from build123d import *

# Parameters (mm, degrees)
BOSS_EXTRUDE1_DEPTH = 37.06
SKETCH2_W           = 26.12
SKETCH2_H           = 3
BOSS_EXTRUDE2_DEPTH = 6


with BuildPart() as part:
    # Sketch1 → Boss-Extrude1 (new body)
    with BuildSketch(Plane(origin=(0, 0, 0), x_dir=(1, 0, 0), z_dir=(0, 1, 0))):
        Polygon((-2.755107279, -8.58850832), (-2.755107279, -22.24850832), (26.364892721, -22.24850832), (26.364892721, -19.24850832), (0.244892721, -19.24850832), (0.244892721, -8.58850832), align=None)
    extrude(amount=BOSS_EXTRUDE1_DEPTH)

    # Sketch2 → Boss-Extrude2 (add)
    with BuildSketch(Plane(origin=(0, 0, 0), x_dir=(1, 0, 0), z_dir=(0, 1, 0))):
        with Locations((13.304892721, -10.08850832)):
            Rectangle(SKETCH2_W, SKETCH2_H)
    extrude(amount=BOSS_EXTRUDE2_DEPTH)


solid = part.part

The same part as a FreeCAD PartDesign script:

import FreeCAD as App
import Part
import Sketcher
from FreeCAD import Vector

doc = App.newDocument("Part")
body = doc.addObject("PartDesign::Body", "Body")

sketch1 = body.newObject("Sketcher::SketchObject", "Sketch")
sketch1.AttachmentSupport = (doc.getObject("XZ_Plane"), [""])
sketch1.MapMode = "FlatFace"
sketch1.addGeometry(Part.LineSegment(Vector(-2.8, 8.6, 0), Vector(-2.8, 22.2, 0)), False)
sketch1.addGeometry(Part.LineSegment(Vector(-2.8, 22.2, 0), Vector(26.4, 22.2, 0)), False)
sketch1.addGeometry(Part.LineSegment(Vector(26.4, 22.2, 0), Vector(26.4, 19.2, 0)), False)
sketch1.addGeometry(Part.LineSegment(Vector(26.4, 19.2, 0), Vector(0.2, 19.2, 0)), False)
sketch1.addGeometry(Part.LineSegment(Vector(0.2, 19.2, 0), Vector(0.2, 8.6, 0)), False)
sketch1.addGeometry(Part.LineSegment(Vector(0.2, 8.6, 0), Vector(-2.8, 8.6, 0)), False)
sketch1.addConstraint(Sketcher.Constraint("Coincident", 0, 2, 1, 1))
sketch1.addConstraint(Sketcher.Constraint("Coincident", 1, 2, 2, 1))
sketch1.addConstraint(Sketcher.Constraint("Coincident", 2, 2, 3, 1))
sketch1.addConstraint(Sketcher.Constraint("Coincident", 3, 2, 4, 1))
sketch1.addConstraint(Sketcher.Constraint("Coincident", 4, 2, 5, 1))
sketch1.addConstraint(Sketcher.Constraint("Coincident", 5, 2, 0, 1))
sketch1.addConstraint(Sketcher.Constraint("Vertical", 0))
sketch1.addConstraint(Sketcher.Constraint("Horizontal", 1))
sketch1.addConstraint(Sketcher.Constraint("Vertical", 2))
sketch1.addConstraint(Sketcher.Constraint("Horizontal", 3))
sketch1.addConstraint(Sketcher.Constraint("Vertical", 4))
sketch1.addConstraint(Sketcher.Constraint("Horizontal", 5))
sketch1.addConstraint(Sketcher.Constraint("Equal", 5, 2))
sketch1.addConstraint(Sketcher.Constraint("DistanceX", 5, 2, 5, 1, 3.0))
sketch1.addConstraint(Sketcher.Constraint("DistanceX", 1, 1, 1, 2, 29.12))
sketch1.addConstraint(Sketcher.Constraint("DistanceY", 0, 1, 0, 2, 13.66))
sketch1.addConstraint(Sketcher.Constraint("DistanceY", -1, 1, 0, 2, 22.248508))
sketch1.addConstraint(Sketcher.Constraint("DistanceX", 0, 2, -1, 1, 2.755107))
pad1 = body.newObject("PartDesign::Pad", "Pad")
pad1.Profile = sketch1
pad1.Length = 37.06
pad1.Reversed = True

sketch2 = body.newObject("Sketcher::SketchObject", "Sketch001")
sketch2.AttachmentSupport = (doc.getObject("XZ_Plane"), [""])
sketch2.MapMode = "FlatFace"
sketch2.addGeometry(Part.LineSegment(Vector(0.2, 8.6, 0), Vector(0.2, 11.6, 0)), False)
sketch2.addGeometry(Part.LineSegment(Vector(0.2, 11.6, 0), Vector(26.4, 11.6, 0)), False)
sketch2.addGeometry(Part.LineSegment(Vector(26.4, 11.6, 0), Vector(26.4, 8.6, 0)), False)
sketch2.addGeometry(Part.LineSegment(Vector(26.4, 8.6, 0), Vector(0.2, 8.6, 0)), False)
sketch2.addConstraint(Sketcher.Constraint("Coincident", 0, 2, 1, 1))
sketch2.addConstraint(Sketcher.Constraint("Coincident", 1, 2, 2, 1))
sketch2.addConstraint(Sketcher.Constraint("Coincident", 2, 2, 3, 1))
sketch2.addConstraint(Sketcher.Constraint("Coincident", 3, 2, 0, 1))
sketch2.addConstraint(Sketcher.Constraint("Vertical", 0))
sketch2.addConstraint(Sketcher.Constraint("Horizontal", 1))
sketch2.addConstraint(Sketcher.Constraint("Vertical", 2))
sketch2.addConstraint(Sketcher.Constraint("Horizontal", 3))
sketch2.addConstraint(Sketcher.Constraint("DistanceY", 0, 1, 0, 2, 3.0))
sketch2.addConstraint(Sketcher.Constraint("DistanceX", 1, 1, 1, 2, 26.12))
sketch2.addConstraint(Sketcher.Constraint("DistanceY", -1, 1, 0, 2, 11.588508))
sketch2.addConstraint(Sketcher.Constraint("DistanceX", -1, 1, 0, 2, 0.244893))
pad2 = body.newObject("PartDesign::Pad", "Pad001")
pad2.Profile = sketch2
pad2.Length = 6
pad2.Reversed = True

doc.recompute()
